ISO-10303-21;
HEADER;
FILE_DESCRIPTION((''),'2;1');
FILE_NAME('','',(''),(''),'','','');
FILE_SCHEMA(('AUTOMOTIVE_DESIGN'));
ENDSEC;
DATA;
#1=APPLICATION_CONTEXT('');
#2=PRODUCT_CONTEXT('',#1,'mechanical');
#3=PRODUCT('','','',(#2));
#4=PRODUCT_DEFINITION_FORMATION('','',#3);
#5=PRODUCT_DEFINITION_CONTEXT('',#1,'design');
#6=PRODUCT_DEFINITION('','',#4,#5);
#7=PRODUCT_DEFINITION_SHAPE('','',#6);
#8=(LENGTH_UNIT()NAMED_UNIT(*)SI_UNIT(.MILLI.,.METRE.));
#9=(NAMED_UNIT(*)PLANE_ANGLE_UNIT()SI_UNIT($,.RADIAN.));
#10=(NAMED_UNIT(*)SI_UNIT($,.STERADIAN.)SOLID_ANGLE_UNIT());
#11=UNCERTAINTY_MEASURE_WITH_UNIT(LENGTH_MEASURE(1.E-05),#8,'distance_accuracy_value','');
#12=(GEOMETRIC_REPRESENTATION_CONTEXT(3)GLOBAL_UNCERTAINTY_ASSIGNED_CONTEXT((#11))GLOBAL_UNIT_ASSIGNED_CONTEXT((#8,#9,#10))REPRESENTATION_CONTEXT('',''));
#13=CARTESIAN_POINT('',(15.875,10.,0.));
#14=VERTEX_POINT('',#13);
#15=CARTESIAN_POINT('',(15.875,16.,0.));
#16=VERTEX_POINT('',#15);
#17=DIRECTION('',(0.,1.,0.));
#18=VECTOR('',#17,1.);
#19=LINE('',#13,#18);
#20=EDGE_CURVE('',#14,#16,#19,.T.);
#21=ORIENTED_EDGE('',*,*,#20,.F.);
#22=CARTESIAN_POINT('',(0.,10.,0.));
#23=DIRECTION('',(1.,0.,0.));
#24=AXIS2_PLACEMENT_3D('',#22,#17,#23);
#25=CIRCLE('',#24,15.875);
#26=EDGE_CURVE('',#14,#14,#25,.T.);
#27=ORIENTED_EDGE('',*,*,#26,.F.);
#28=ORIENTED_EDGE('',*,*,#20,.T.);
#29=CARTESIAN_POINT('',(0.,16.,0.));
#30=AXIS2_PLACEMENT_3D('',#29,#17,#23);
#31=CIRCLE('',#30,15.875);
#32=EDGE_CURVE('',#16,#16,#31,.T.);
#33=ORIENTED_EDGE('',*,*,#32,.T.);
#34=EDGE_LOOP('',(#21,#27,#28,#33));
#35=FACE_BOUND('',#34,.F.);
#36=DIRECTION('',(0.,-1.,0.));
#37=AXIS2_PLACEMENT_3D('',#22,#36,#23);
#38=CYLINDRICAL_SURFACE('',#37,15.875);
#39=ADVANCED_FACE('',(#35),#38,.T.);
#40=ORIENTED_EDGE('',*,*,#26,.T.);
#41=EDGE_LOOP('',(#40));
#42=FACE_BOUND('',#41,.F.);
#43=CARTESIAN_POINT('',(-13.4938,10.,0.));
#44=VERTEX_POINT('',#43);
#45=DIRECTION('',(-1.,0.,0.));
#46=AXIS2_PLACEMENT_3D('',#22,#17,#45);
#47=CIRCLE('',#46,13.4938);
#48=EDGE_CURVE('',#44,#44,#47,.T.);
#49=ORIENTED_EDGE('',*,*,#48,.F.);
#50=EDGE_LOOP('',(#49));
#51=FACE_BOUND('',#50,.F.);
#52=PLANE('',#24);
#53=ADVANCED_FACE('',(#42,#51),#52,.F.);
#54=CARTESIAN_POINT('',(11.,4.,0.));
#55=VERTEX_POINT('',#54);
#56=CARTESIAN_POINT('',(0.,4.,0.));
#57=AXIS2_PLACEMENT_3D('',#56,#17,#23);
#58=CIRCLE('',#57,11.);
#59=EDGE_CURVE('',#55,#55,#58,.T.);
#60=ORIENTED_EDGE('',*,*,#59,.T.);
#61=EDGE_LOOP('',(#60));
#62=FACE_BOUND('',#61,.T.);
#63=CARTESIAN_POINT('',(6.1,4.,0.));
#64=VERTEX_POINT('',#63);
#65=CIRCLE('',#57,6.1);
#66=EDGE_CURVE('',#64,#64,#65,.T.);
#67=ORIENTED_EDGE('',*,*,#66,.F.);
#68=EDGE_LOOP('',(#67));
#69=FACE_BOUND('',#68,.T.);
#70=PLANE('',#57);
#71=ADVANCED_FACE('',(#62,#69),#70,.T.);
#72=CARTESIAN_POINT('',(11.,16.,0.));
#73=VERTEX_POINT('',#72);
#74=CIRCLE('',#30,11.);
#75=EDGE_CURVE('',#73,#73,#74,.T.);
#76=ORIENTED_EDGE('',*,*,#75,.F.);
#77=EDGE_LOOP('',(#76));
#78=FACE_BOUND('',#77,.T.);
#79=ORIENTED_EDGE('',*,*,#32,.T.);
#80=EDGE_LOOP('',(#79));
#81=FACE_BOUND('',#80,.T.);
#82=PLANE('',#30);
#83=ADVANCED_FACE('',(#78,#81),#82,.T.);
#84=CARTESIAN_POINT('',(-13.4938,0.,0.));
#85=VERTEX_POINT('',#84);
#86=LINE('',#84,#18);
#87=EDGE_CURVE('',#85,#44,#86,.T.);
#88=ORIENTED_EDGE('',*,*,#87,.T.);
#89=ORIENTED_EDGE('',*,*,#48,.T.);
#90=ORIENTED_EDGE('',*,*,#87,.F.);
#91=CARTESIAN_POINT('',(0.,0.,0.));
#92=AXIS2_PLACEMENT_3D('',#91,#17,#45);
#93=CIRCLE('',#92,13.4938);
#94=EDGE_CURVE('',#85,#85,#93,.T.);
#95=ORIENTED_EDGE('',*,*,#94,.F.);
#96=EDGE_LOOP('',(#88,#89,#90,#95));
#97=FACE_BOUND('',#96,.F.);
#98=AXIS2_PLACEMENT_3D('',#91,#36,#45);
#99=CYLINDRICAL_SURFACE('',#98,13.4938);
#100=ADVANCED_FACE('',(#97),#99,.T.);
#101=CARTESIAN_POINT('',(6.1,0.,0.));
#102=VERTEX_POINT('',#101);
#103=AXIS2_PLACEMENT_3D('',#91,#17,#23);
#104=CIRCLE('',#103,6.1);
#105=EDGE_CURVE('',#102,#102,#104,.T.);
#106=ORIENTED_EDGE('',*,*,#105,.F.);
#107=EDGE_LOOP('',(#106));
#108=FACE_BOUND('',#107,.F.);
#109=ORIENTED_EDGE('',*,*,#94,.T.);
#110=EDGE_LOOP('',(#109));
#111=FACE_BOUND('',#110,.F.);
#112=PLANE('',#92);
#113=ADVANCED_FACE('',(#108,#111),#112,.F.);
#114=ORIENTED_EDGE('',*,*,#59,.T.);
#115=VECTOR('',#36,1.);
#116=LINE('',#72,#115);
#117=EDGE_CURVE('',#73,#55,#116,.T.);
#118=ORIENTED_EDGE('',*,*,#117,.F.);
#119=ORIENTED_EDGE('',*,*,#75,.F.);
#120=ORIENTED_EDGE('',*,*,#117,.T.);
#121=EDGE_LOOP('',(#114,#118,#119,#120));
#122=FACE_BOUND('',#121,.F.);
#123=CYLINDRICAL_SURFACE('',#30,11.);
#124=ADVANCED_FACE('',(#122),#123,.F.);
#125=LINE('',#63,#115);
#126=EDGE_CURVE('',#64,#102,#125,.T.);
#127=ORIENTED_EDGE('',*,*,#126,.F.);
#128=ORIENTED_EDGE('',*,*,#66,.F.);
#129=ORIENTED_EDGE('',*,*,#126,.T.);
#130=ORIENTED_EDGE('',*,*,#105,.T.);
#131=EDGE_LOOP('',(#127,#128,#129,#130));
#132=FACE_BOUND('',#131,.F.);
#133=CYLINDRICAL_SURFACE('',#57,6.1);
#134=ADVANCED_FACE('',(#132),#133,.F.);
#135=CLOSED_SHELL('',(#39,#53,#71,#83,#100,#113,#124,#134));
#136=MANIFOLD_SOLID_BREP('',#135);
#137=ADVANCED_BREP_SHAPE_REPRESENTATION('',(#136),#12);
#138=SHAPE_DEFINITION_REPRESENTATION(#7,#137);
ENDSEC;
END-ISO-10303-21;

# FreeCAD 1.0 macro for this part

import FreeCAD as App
import Part
import Sketcher
Q = App.Units.Quantity

doc = App.newDocument("Part")
body = doc.addObject("PartDesign::Body", "Body")

sketch1 = body.newObject("Sketcher::SketchObject", "Sketch")
sketch1.AttachmentSupport = (doc.getObject("XZ_Plane"), [""])
sketch1.MapMode = "FlatFace"
sketch1.addGeometry(Part.Circle(App.Vector(0, 0, 0), App.Vector(0, 0, 1), 13.4938), False)
sketch1.addConstraint([
    Sketcher.Constraint("Coincident", 0, 3, -1, 1),
    Sketcher.Constraint("Diameter", 0, Q("26.9876 mm")),
])
pad1 = body.newObject("PartDesign::Pad", "Pad")
pad1.Profile = sketch1
pad1.Length = 10
pad1.Reversed = True

sketch2 = body.newObject("Sketcher::SketchObject", "Sketch001")
sketch2.AttachmentSupport = (doc.getObject("XZ_Plane"), [""])
sketch2.MapMode = "FlatFace"
sketch2.AttachmentOffset = App.Placement(App.Vector(0, 0, -10), App.Rotation())
sketch2.addGeometry(Part.Circle(App.Vector(0, 0, 0), App.Vector(0, 0, 1), 15.875), False)
sketch2.addConstraint([
    Sketcher.Constraint("Coincident", 0, 3, -1, 1),
    Sketcher.Constraint("Diameter", 0, Q("31.75 mm")),
])
pad2 = body.newObject("PartDesign::Pad", "Pad001")
pad2.Profile = sketch2
pad2.Length = 6
pad2.Reversed = True

sketch3 = body.newObject("Sketcher::SketchObject", "Sketch002")
sketch3.AttachmentSupport = (doc.getObject("XZ_Plane"), [""])
sketch3.MapMode = "FlatFace"
sketch3.AttachmentOffset = App.Placement(App.Vector(0, 0, -16), App.Rotation())
sketch3.addGeometry(Part.Circle(App.Vector(0, 0, 0), App.Vector(0, 0, 1), 11), False)
sketch3.addConstraint([
    Sketcher.Constraint("Coincident", 0, 3, -1, 1),
    Sketcher.Constraint("Diameter", 0, Q("22 mm")),
])
pocket1 = body.newObject("PartDesign::Pocket", "Pocket")
pocket1.Profile = sketch3
pocket1.Length = 12
pocket1.Reversed = True

sketch4 = body.newObject("Sketcher::SketchObject", "Sketch003")
sketch4.AttachmentSupport = (doc.getObject("XZ_Plane"), [""])
sketch4.MapMode = "FlatFace"
sketch4.AttachmentOffset = App.Placement(App.Vector(0, 0, -4), App.Rotation())
sketch4.addGeometry(Part.Circle(App.Vector(0, 0, 0), App.Vector(0, 0, 1), 6.1), False)
sketch4.addConstraint([
    Sketcher.Constraint("Coincident", 0, 3, -1, 1),
    Sketcher.Constraint("Diameter", 0, Q("12.2 mm")),
])
pocket2 = body.newObject("PartDesign::Pocket", "Pocket001")
pocket2.Profile = sketch4
pocket2.Length = 4
pocket2.Reversed = True

doc.recompute()
